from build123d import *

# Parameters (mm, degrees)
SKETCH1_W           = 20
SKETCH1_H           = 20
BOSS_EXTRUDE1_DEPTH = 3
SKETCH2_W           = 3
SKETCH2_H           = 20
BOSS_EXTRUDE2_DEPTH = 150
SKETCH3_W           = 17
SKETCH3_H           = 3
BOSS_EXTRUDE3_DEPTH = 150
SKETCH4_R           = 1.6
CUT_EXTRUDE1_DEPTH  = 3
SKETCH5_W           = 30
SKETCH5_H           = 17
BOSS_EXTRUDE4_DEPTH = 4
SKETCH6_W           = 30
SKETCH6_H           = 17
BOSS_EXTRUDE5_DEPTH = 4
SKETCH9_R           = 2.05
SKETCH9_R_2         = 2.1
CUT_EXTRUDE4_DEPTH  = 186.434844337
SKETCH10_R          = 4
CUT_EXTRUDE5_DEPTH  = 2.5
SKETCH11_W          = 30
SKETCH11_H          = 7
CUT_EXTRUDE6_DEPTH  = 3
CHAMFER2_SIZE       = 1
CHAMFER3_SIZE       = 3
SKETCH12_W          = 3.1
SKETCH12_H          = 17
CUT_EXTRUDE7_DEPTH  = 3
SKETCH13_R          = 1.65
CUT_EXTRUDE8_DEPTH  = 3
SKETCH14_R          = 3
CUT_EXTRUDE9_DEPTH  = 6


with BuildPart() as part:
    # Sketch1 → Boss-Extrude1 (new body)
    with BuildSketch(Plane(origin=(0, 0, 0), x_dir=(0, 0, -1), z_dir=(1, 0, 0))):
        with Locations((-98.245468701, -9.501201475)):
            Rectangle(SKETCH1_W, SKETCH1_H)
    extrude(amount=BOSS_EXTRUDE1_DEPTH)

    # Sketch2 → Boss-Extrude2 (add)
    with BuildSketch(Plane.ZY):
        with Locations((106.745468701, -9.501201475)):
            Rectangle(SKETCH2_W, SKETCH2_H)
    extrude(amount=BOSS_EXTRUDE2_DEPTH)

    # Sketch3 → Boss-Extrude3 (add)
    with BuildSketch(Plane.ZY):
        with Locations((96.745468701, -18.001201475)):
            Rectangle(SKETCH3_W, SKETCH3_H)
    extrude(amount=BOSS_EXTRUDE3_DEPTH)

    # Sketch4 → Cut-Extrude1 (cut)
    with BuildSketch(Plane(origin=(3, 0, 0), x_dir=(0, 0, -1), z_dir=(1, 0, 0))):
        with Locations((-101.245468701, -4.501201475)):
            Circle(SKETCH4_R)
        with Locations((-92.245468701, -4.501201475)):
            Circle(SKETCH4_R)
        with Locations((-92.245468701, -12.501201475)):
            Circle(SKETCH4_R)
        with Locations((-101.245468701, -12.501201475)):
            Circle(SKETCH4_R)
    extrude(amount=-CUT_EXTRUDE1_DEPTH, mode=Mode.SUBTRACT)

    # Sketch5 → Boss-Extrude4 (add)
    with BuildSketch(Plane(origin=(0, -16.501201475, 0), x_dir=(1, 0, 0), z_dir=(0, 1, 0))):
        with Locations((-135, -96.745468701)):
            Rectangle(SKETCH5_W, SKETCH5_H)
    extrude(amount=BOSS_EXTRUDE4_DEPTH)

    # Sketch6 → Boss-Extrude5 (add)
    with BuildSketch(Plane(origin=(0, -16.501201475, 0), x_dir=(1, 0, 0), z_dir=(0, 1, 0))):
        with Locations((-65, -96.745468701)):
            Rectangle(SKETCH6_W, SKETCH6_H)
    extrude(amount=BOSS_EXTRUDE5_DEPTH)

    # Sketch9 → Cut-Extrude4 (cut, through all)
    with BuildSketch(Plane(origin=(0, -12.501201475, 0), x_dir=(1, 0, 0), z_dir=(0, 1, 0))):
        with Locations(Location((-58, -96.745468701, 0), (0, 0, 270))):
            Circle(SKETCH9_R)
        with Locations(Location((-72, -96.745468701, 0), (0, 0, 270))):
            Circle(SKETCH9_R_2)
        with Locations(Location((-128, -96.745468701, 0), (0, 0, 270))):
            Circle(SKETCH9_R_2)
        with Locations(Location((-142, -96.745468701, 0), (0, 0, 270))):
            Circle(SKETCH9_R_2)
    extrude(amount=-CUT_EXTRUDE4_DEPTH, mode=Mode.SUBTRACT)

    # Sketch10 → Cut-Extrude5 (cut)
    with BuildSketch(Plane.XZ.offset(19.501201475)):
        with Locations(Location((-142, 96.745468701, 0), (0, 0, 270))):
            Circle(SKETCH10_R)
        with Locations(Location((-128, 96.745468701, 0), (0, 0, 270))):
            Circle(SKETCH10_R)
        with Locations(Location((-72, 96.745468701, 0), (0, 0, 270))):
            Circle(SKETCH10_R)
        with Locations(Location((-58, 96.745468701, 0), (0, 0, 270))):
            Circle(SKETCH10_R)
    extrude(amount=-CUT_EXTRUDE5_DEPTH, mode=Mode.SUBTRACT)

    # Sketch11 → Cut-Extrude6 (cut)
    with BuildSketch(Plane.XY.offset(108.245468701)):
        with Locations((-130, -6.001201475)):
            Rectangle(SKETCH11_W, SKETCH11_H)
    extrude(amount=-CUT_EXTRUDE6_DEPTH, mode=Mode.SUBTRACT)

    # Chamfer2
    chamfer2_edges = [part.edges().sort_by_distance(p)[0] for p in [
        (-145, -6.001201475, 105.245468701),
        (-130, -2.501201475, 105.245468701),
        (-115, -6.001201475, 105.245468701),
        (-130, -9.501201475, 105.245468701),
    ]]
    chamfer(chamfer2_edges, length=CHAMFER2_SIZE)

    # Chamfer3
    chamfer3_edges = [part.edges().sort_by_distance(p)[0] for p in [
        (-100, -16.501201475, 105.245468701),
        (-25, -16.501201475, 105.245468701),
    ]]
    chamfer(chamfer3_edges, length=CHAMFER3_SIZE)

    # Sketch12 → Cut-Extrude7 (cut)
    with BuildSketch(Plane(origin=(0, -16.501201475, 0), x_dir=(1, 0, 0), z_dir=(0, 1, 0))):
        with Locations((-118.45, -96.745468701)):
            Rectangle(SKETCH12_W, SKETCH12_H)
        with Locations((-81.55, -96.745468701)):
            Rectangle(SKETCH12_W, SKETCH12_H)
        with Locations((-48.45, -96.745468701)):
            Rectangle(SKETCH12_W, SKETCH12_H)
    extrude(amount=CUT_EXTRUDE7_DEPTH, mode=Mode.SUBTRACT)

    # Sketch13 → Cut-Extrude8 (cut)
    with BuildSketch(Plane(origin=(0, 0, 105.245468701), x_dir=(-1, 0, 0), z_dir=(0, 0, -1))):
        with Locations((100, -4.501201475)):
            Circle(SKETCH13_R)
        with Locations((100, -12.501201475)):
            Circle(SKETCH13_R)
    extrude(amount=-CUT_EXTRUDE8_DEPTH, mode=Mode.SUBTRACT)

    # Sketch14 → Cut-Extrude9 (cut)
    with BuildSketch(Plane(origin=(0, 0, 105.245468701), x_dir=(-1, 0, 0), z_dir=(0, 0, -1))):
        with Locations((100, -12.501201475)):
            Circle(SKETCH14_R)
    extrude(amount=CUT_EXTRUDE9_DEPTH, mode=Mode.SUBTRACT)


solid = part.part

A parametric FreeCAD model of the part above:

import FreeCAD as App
import Part
import Sketcher


def edges_at(feature, points):
    """Names of the edges that pass closest to the given points."""
    edges = feature.Shape.Edges
    near = lambda p: min(range(len(edges)), key=lambda i: edges[i].distToShape(Part.Vertex(*p))[0])
    return sorted({f"Edge{near(p) + 1}" for p in points})


def add_polygon(sketch, points):
    """Adds a closed chain of lines whose ends are joined by coincident constraints."""
    first, n = sketch.GeometryCount, len(points)
    for a, b in zip(points, points[1:] + points[:1]):
        sketch.addGeometry(Part.LineSegment(App.Vector(*a, 0), App.Vector(*b, 0)), False)
    for i in range(n):
        sketch.addConstraint(Sketcher.Constraint("Coincident", first + i, 2, first + (i + 1) % n, 1))

doc = App.newDocument("Part")
params = doc.addObject("Spreadsheet::Sheet", "Params")
for row, (alias, value) in enumerate([
    ("sketch1_width", "20 mm"),
    ("pad1_length", "3 mm"),
    ("sketch2_width", "20 mm"),
    ("sketch2_height", "3 mm"),
    ("pad2_length", "150 mm"),
    ("sketch3_width", "3 mm"),
    ("sketch3_height", "17 mm"),
    ("pad3_length", "150 mm"),
    ("sketch4_diameter", "3.2 mm"),
    ("pocket1_length", "3 mm"),
    ("sketch5_width", "30 mm"),
    ("sketch5_height", "17 mm"),
    ("pad4_length", "4 mm"),
    ("sketch6_width", "30 mm"),
    ("sketch6_height", "17 mm"),
    ("pad5_length", "4 mm"),
    ("sketch7_diameter", "4.1 mm"),
    ("sketch7_diameter2", "4.2 mm"),
    ("sketch8_diameter", "8 mm"),
    ("pocket3_length", "2.5 mm"),
    ("sketch9_width", "30 mm"),
    ("sketch9_height", "7 mm"),
    ("pocket4_length", "3 mm"),
    ("chamfer_size", "1 mm"),
    ("chamfer2_size", "3 mm"),
    ("sketch10_height", "17 mm"),
    ("sketch10_width", "3.1 mm"),
    ("pocket5_length", "3 mm"),
    ("sketch11_diameter", "3.3 mm"),
    ("pocket6_length", "3 mm"),
    ("sketch12_diameter", "6 mm"),
    ("pocket7_length", "6 mm"),
], start=1):
    params.set(f"A{row}", alias)
    params.set(f"B{row}", "=" + value)
    params.setAlias(f"B{row}", alias)

body = doc.addObject("PartDesign::Body", "Body")

sketch1 = doc.addObject("Sketcher::SketchObject", "Sketch")
body.addObject(sketch1)
sketch1.AttachmentSupport = (doc.YZ_Plane, [""])
sketch1.MapMode = "FlatFace"
add_polygon(sketch1, [(0, 108), (-20, 108), (-20, 88), (0, 88)])
sketch1.addConstraint([
    Sketcher.Constraint("Horizontal", 0),
    Sketcher.Constraint("Vertical", 1),
    Sketcher.Constraint("Horizontal", 2),
    Sketcher.Constraint("Vertical", 3),
    Sketcher.Constraint("Equal", 2, 1),
    Sketcher.Constraint("DistanceX", 0, 2, 0, 1, 20.0),
    Sketcher.Constraint("DistanceX", 0, 2, -1, 1, 19.501201),
    Sketcher.Constraint("DistanceY", -1, 1, 0, 2, 108.245469),
])
sketch1.setExpression("Constraints[9]", "Params.sketch1_width")
pad1 = doc.addObject("PartDesign::Pad", "Pad")
body.addObject(pad1)
pad1.Profile = sketch1
pad1.setExpression("Length", "Params.pad1_length")

sketch2 = doc.addObject("Sketcher::SketchObject", "Sketch001")
body.addObject(sketch2)
sketch2.AttachmentSupport = (doc.YZ_Plane, [""])
sketch2.MapMode = "FlatFace"
add_polygon(sketch2, [(0.5, 105.2), (-19.5, 105.2), (-19.5, 108.2), (0.5, 108.2)])
sketch2.addConstraint([
    Sketcher.Constraint("Horizontal", 0),
    Sketcher.Constraint("Vertical", 1),
    Sketcher.Constraint("Horizontal", 2),
    Sketcher.Constraint("Vertical", 3),
    Sketcher.Constraint("DistanceX", 0, 2, 0, 1, 20.0),
    Sketcher.Constraint("DistanceY", 1, 1, 1, 2, 3.0),
    Sketcher.Constraint("DistanceX", 0, 2, -1, 1, 19.501201),
    Sketcher.Constraint("DistanceY", -1, 1, 0, 2, 105.245469),
])
sketch2.setExpression("Constraints[8]", "Params.sketch2_width")
sketch2.setExpression("Constraints[9]", "Params.sketch2_height")
pad2 = doc.addObject("PartDesign::Pad", "Pad001")
body.addObject(pad2)
pad2.Profile = sketch2
pad2.setExpression("Length", "Params.pad2_length")
pad2.Reversed = True

sketch3 = doc.addObject("Sketcher::SketchObject", "Sketch002")
body.addObject(sketch3)
sketch3.AttachmentSupport = (doc.YZ_Plane, [""])
sketch3.MapMode = "FlatFace"
add_polygon(sketch3, [(-16.5, 88.2), (-19.5, 88.2), (-19.5, 105.2), (-16.5, 105.2)])
sketch3.addConstraint([
    Sketcher.Constraint("Horizontal", 0),
    Sketcher.Constraint("Vertical", 1),
    Sketcher.Constraint("Horizontal", 2),
    Sketcher.Constraint("Vertical", 3),
    Sketcher.Constraint("DistanceX", 0, 2, 0, 1, 3.0),
    Sketcher.Constraint("DistanceY", 1, 1, 1, 2, 17.0),
    Sketcher.Constraint("DistanceX", 0, 2, -1, 1, 19.501201),
    Sketcher.Constraint("DistanceY", -1, 1, 0, 2, 88.245469),
])
sketch3.setExpression("Constraints[8]", "Params.sketch3_width")
sketch3.setExpression("Constraints[9]", "Params.sketch3_height")
pad3 = doc.addObject("PartDesign::Pad", "Pad002")
body.addObject(pad3)
pad3.Profile = sketch3
pad3.setExpression("Length", "Params.pad3_length")
pad3.Reversed = True

sketch4 = doc.addObject("Sketcher::SketchObject", "Sketch003")
body.addObject(sketch4)
sketch4.AttachmentSupport = (doc.YZ_Plane, [""])
sketch4.MapMode = "FlatFace"
sketch4.AttachmentOffset = App.Placement(App.Vector(0, 0, 3), App.Rotation())
sketch4.addGeometry([
    Part.Circle(App.Vector(-4.5, 101.2, 0), App.Vector(0, 0, 1), 1.6),
    Part.Circle(App.Vector(-4.5, 92.2, 0), App.Vector(0, 0, 1), 1.6),
    Part.Circle(App.Vector(-12.5, 92.2, 0), App.Vector(0, 0, 1), 1.6),
    Part.Circle(App.Vector(-12.5, 101.2, 0), App.Vector(0, 0, 1), 1.6),
], False)
sketch4.addConstraint([
    Sketcher.Constraint("Equal", 0, 1),
    Sketcher.Constraint("Equal", 1, 2),
    Sketcher.Constraint("Equal", 2, 3),
    Sketcher.Constraint("Horizontal", 1, 3, 2, 3),
    Sketcher.Constraint("Horizontal", 0, 3, 3, 3),
    Sketcher.Constraint("Vertical", 0, 3, 1, 3),
    Sketcher.Constraint("Vertical", 2, 3, 3, 3),
    Sketcher.Constraint("Diameter", 0, 3.2),
    Sketcher.Constraint("DistanceY", 1, 3, 0, 3, 9.0),
    Sketcher.Constraint("DistanceX", 2, 3, 1, 3, 8.0),
    Sketcher.Constraint("DistanceX", 0, 3, -1, 1, 4.501201),
    Sketcher.Constraint("DistanceY", -1, 1, 0, 3, 101.245469),
])
sketch4.setExpression("Constraints[7]", "Params.sketch4_diameter")
pocket1 = doc.addObject("PartDesign::Pocket", "Pocket")
body.addObject(pocket1)
pocket1.Profile = sketch4
pocket1.setExpression("Length", "Params.pocket1_length")

sketch5 = doc.addObject("Sketcher::SketchObject", "Sketch004")
body.addObject(sketch5)
sketch5.AttachmentSupport = (doc.XZ_Plane, [""])
sketch5.MapMode = "FlatFace"
sketch5.AttachmentOffset = App.Placement(App.Vector(0, 0, 16.501201), App.Rotation())
add_polygon(sketch5, [(-150, 88), (-150, 105), (-120, 105), (-120, 88)])
sketch5.addConstraint([
    Sketcher.Constraint("Vertical", 0),
    Sketcher.Constraint("Horizontal", 1),
    Sketcher.Constraint("Vertical", 2),
    Sketcher.Constraint("Horizontal", 3),
    Sketcher.Constraint("DistanceX", 1, 1, 1, 2, 30.0),
    Sketcher.Constraint("DistanceY", 0, 1, 0, 2, 17.0),
    Sketcher.Constraint("DistanceX", 0, 2, -1, 1, 150.0),
    Sketcher.Constraint("DistanceY", -1, 1, 0, 2, 105.245469),
])
sketch5.setExpression("Constraints[8]", "Params.sketch5_width")
sketch5.setExpression("Constraints[9]", "Params.sketch5_height")
pad4 = doc.addObject("PartDesign::Pad", "Pad003")
body.addObject(pad4)
pad4.Profile = sketch5
pad4.setExpression("Length", "Params.pad4_length")
pad4.Reversed = True

sketch6 = doc.addObject("Sketcher::SketchObject", "Sketch005")
body.addObject(sketch6)
sketch6.AttachmentSupport = (doc.XZ_Plane, [""])
sketch6.MapMode = "FlatFace"
sketch6.AttachmentOffset = App.Placement(App.Vector(0, 0, 16.501201), App.Rotation())
add_polygon(sketch6, [(-80, 88), (-80, 105), (-50, 105), (-50, 88)])
sketch6.addConstraint([
    Sketcher.Constraint("Vertical", 0),
    Sketcher.Constraint("Horizontal", 1),
    Sketcher.Constraint("Vertical", 2),
    Sketcher.Constraint("Horizontal", 3),
    Sketcher.Constraint("DistanceX", 1, 1, 1, 2, 30.0),
    Sketcher.Constraint("DistanceY", 0, 1, 0, 2, 17.0),
    Sketcher.Constraint("DistanceX", 0, 2, -1, 1, 80.0),
    Sketcher.Constraint("DistanceY", -1, 1, 0, 2, 105.245469),
])
sketch6.setExpression("Constraints[8]", "Params.sketch6_width")
sketch6.setExpression("Constraints[9]", "Params.sketch6_height")
pad5 = doc.addObject("PartDesign::Pad", "Pad004")
body.addObject(pad5)
pad5.Profile = sketch6
pad5.setExpression("Length", "Params.pad5_length")
pad5.Reversed = True

sketch7 = doc.addObject("Sketcher::SketchObject", "Sketch006")
body.addObject(sketch7)
sketch7.AttachmentSupport = (doc.XZ_Plane, [""])
sketch7.MapMode = "FlatFace"
sketch7.AttachmentOffset = App.Placement(App.Vector(0, 0, 12.501201), App.Rotation())
sketch7.addGeometry([
    Part.Circle(App.Vector(-58, 96.7, 0), App.Vector(0, 0, 1), 2),
    Part.Circle(App.Vector(-72, 96.7, 0), App.Vector(0, 0, 1), 2.1),
    Part.Circle(App.Vector(-128, 96.7, 0), App.Vector(0, 0, 1), 2.1),
    Part.Circle(App.Vector(-142, 96.7, 0), App.Vector(0, 0, 1), 2.1),
], False)
sketch7.addConstraint([
    Sketcher.Constraint("Equal", 1, 2),
    Sketcher.Constraint("Equal", 2, 3),
    Sketcher.Constraint("Horizontal", 0, 3, 1, 3),
    Sketcher.Constraint("Horizontal", 1, 3, 2, 3),
    Sketcher.Constraint("Horizontal", 2, 3, 3, 3),
    Sketcher.Constraint("Diameter", 0, 4.1),
    Sketcher.Constraint("Diameter", 1, 4.2),
    Sketcher.Constraint("DistanceX", 0, 3, -1, 1, 58.0),
    Sketcher.Constraint("DistanceX", 1, 3, -1, 1, 72.0),
    Sketcher.Constraint("DistanceX", 2, 3, -1, 1, 128.0),
    Sketcher.Constraint("DistanceX", 3, 3, -1, 1, 142.0),
    Sketcher.Constraint("DistanceY", -1, 1, 0, 3, 96.745469),
])
sketch7.setExpression("Constraints[5]", "Params.sketch7_diameter")
sketch7.setExpression("Constraints[6]", "Params.sketch7_diameter2")
pocket2 = doc.addObject("PartDesign::Pocket", "Pocket001")
body.addObject(pocket2)
pocket2.Profile = sketch7
pocket2.Type = "ThroughAll"
pocket2.Reversed = True

sketch8 = doc.addObject("Sketcher::SketchObject", "Sketch007")
body.addObject(sketch8)
sketch8.AttachmentSupport = (doc.XZ_Plane, [""])
sketch8.MapMode = "FlatFace"
sketch8.AttachmentOffset = App.Placement(App.Vector(0, 0, 19.501201), App.Rotation())
sketch8.addGeometry([
    Part.Circle(App.Vector(-142, 96.7, 0), App.Vector(0, 0, 1), 4),
    Part.Circle(App.Vector(-128, 96.7, 0), App.Vector(0, 0, 1), 4),
    Part.Circle(App.Vector(-72, 96.7, 0), App.Vector(0, 0, 1), 4),
    Part.Circle(App.Vector(-58, 96.7, 0), App.Vector(0, 0, 1), 4),
], False)
sketch8.addConstraint([
    Sketcher.Constraint("Equal", 0, 1),
    Sketcher.Constraint("Equal", 1, 2),
    Sketcher.Constraint("Equal", 2, 3),
    Sketcher.Constraint("Horizontal", 0, 3, 1, 3),
    Sketcher.Constraint("Horizontal", 1, 3, 2, 3),
    Sketcher.Constraint("Horizontal", 2, 3, 3, 3),
    Sketcher.Constraint("Diameter", 0, 8.0),
    Sketcher.Constraint("DistanceX", 0, 3, -1, 1, 142.0),
    Sketcher.Constraint("DistanceX", 1, 3, -1, 1, 128.0),
    Sketcher.Constraint("DistanceX", 2, 3, -1, 1, 72.0),
    Sketcher.Constraint("DistanceX", 3, 3, -1, 1, 58.0),
    Sketcher.Constraint("DistanceY", -1, 1, 0, 3, 96.745469),
])
sketch8.setExpression("Constraints[6]", "Params.sketch8_diameter")
pocket3 = doc.addObject("PartDesign::Pocket", "Pocket002")
body.addObject(pocket3)
pocket3.Profile = sketch8
pocket3.setExpression("Length", "Params.pocket3_length")

sketch9 = doc.addObject("Sketcher::SketchObject", "Sketch008")
body.addObject(sketch9)
sketch9.AttachmentSupport = (doc.XY_Plane, [""])
sketch9.MapMode = "FlatFace"
sketch9.AttachmentOffset = App.Placement(App.Vector(0, 0, 108.245469), App.Rotation())
add_polygon(sketch9, [(-145, -3), (-145, -10), (-115, -10), (-115, -3)])
sketch9.addConstraint([
    Sketcher.Constraint("Vertical", 0),
    Sketcher.Constraint("Horizontal", 1),
    Sketcher.Constraint("Vertical", 2),
    Sketcher.Constraint("Horizontal", 3),
    Sketcher.Constraint("DistanceX", 1, 1, 1, 2, 30.0),
    Sketcher.Constraint("DistanceY", 0, 2, 0, 1, 7.0),
    Sketcher.Constraint("DistanceX", 0, 2, -1, 1, 145.0),
    Sketcher.Constraint("DistanceY", 0, 2, -1, 1, 9.501201),
])
sketch9.setExpression("Constraints[8]", "Params.sketch9_width")
sketch9.setExpression("Constraints[9]", "Params.sketch9_height")
pocket4 = doc.addObject("PartDesign::Pocket", "Pocket003")
body.addObject(pocket4)
pocket4.Profile = sketch9
pocket4.setExpression("Length", "Params.pocket4_length")
doc.recompute()

chamfer = doc.addObject("PartDesign::Chamfer", "Chamfer")
body.addObject(chamfer)
chamfer.Base = (pocket4, edges_at(pocket4, [
    (-145, -6.001, 105.245),
    (-130, -2.501, 105.245),
    (-115, -6.001, 105.245),
    (-130, -9.501, 105.245),
]))
chamfer.setExpression("Size", "Params.chamfer_size")
doc.recompute()

chamfer2 = doc.addObject("PartDesign::Chamfer", "Chamfer001")
body.addObject(chamfer2)
chamfer2.Base = (chamfer, edges_at(chamfer, [(-100, -16.501, 105.245), (-25, -16.501, 105.245)]))
chamfer2.setExpression("Size", "Params.chamfer2_size")

sketch10 = doc.addObject("Sketcher::SketchObject", "Sketch009")
body.addObject(sketch10)
sketch10.AttachmentSupport = (doc.XZ_Plane, [""])
sketch10.MapMode = "FlatFace"
sketch10.AttachmentOffset = App.Placement(App.Vector(0, 0, 16.501201), App.Rotation())
add_polygon(sketch10, [(-120, 88.2), (-120, 105.2), (-116.9, 105.2), (-116.9, 88.2)])
add_polygon(sketch10, [(-83.1, 88.2), (-83.1, 105.2), (-80, 105.2), (-80, 88.2)])
add_polygon(sketch10, [(-50, 88.2), (-50, 105.2), (-46.9, 105.2), (-46.9, 88.2)])
sketch10.addConstraint([
    Sketcher.Constraint("Vertical", 0),
    Sketcher.Constraint("Horizontal", 1),
    Sketcher.Constraint("Vertical", 2),
    Sketcher.Constraint("Horizontal", 3),
    Sketcher.Constraint("Vertical", 4),
    Sketcher.Constraint("Horizontal", 5),
    Sketcher.Constraint("Vertical", 6),
    Sketcher.Constraint("Horizontal", 7),
    Sketcher.Constraint("Vertical", 8),
    Sketcher.Constraint("Horizontal", 9),
    Sketcher.Constraint("Vertical", 10),
    Sketcher.Constraint("Horizontal", 11),
    Sketcher.Constraint("Horizontal", 1, 2, 4, 2),
    Sketcher.Constraint("Horizontal", 3, 2, 6, 2),
    Sketcher.Constraint("Horizontal", 5, 2, 8, 2),
    Sketcher.Constraint("Horizontal", 7, 2, 10, 2),
    Sketcher.Constraint("Equal", 3, 5),
    Sketcher.Constraint("Equal", 7, 9),
    Sketcher.Constraint("DistanceY", 0, 1, 0, 2, 17.0),
    Sketcher.Constraint("DistanceX", 1, 1, 1, 2, 3.1),
    Sketcher.Constraint("DistanceX", 0, 2, -1, 1, 120.0),
    Sketcher.Constraint("DistanceX", 5, 2, -1, 1, 80.0),
    Sketcher.Constraint("DistanceX", 8, 2, -1, 1, 50.0),
    Sketcher.Constraint("DistanceY", -1, 1, 0, 2, 105.245469),
])
sketch10.setExpression("Constraints[30]", "Params.sketch10_height")
sketch10.setExpression("Constraints[31]", "Params.sketch10_width")
pocket5 = doc.addObject("PartDesign::Pocket", "Pocket004")
body.addObject(pocket5)
pocket5.Profile = sketch10
pocket5.setExpression("Length", "Params.pocket5_length")

sketch11 = doc.addObject("Sketcher::SketchObject", "Sketch010")
body.addObject(sketch11)
sketch11.AttachmentSupport = (doc.XY_Plane, [""])
sketch11.MapMode = "FlatFace"
sketch11.AttachmentOffset = App.Placement(App.Vector(0, 0, 105.245469), App.Rotation())
sketch11.addGeometry([
    Part.Circle(App.Vector(-100, -4.5, 0), App.Vector(0, 0, 1), 1.6),
    Part.Circle(App.Vector(-100, -12.5, 0), App.Vector(0, 0, 1), 1.6),
], False)
sketch11.addConstraint([
    Sketcher.Constraint("Equal", 0, 1),
    Sketcher.Constraint("Vertical", 0, 3, 1, 3),
    Sketcher.Constraint("Diameter", 0, 3.3),
    Sketcher.Constraint("DistanceX", 0, 3, -1, 1, 100.0),
    Sketcher.Constraint("DistanceY", 1, 3, 0, 3, 8.0),
    Sketcher.Constraint("DistanceY", 0, 3, -1, 1, 4.501201),
])
sketch11.setExpression("Constraints[2]", "Params.sketch11_diameter")
pocket6 = doc.addObject("PartDesign::Pocket", "Pocket005")
body.addObject(pocket6)
pocket6.Profile = sketch11
pocket6.setExpression("Length", "Params.pocket6_length")
pocket6.Reversed = True

sketch12 = doc.addObject("Sketcher::SketchObject", "Sketch011")
body.addObject(sketch12)
sketch12.AttachmentSupport = (doc.XY_Plane, [""])
sketch12.MapMode = "FlatFace"
sketch12.AttachmentOffset = App.Placement(App.Vector(0, 0, 105.245469), App.Rotation())
sketch12.addGeometry(Part.Circle(App.Vector(-100, -12.5, 0), App.Vector(0, 0, 1), 3), False)
sketch12.addConstraint([
    Sketcher.Constraint("Diameter", 0, 6.0),
    Sketcher.Constraint("DistanceX", 0, 3, -1, 1, 100.0),
    Sketcher.Constraint("DistanceY", 0, 3, -1, 1, 12.501201),
])
sketch12.setExpression("Constraints[0]", "Params.sketch12_diameter")
pocket7 = doc.addObject("PartDesign::Pocket", "Pocket006")
body.addObject(pocket7)
pocket7.Profile = sketch12
pocket7.setExpression("Length", "Params.pocket7_length")

doc.recompute()
